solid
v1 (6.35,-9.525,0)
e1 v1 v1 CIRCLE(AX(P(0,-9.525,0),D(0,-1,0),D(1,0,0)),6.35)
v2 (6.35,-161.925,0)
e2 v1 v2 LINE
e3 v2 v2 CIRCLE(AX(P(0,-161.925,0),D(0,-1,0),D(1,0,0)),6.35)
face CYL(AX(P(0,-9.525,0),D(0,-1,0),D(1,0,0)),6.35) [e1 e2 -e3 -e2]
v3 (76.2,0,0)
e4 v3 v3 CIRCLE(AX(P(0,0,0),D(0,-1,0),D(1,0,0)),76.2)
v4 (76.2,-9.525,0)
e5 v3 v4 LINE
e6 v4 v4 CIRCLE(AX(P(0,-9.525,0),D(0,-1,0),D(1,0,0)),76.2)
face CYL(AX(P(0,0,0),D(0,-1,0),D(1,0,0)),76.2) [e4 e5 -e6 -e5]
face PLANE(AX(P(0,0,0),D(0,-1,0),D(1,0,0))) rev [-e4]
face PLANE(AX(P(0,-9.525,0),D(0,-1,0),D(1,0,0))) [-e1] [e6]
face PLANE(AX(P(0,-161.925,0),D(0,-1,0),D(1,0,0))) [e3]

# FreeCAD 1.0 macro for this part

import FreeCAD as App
import Part
import Sketcher

V = App.Vector
Q = App.Units.Quantity

doc = App.newDocument("Part")
body = doc.addObject("PartDesign::Body", "Body")

# Sketch on XY plane
sketch1 = body.newObject("Sketcher::SketchObject", "Sketch")
sketch1.AttachmentSupport = (doc.getObject("XY_Plane"), [""])
sketch1.MapMode = "FlatFace"
sketch1.addGeometry(Part.LineSegment(V(76, 0, 0), V(0, 0, 0)), False)
sketch1.addGeometry(Part.LineSegment(V(0, 0, 0), V(0, -162, 0)), False)
sketch1.addGeometry(Part.LineSegment(V(0, -162, 0), V(6, -162, 0)), False)
sketch1.addGeometry(Part.LineSegment(V(6, -162, 0), V(6, -10, 0)), False)
sketch1.addGeometry(Part.LineSegment(V(6, -10, 0), V(76, -10, 0)), False)
sketch1.addGeometry(Part.LineSegment(V(76, -10, 0), V(76, 0, 0)), False)
sketch1.addConstraint(Sketcher.Constraint("Coincident", 0, 2, 1, 1))
sketch1.addConstraint(Sketcher.Constraint("Coincident", 1, 2, 2, 1))
sketch1.addConstraint(Sketcher.Constraint("Coincident", 2, 2, 3, 1))
sketch1.addConstraint(Sketcher.Constraint("Coincident", 3, 2, 4, 1))
sketch1.addConstraint(Sketcher.Constraint("Coincident", 4, 2, 5, 1))
sketch1.addConstraint(Sketcher.Constraint("Coincident", 5, 2, 0, 1))
sketch1.addConstraint(Sketcher.Constraint("Horizontal", 0))
sketch1.addConstraint(Sketcher.Constraint("Vertical", 1))
sketch1.addConstraint(Sketcher.Constraint("Horizontal", 2))
sketch1.addConstraint(Sketcher.Constraint("Vertical", 3))
sketch1.addConstraint(Sketcher.Constraint("Horizontal", 4))
sketch1.addConstraint(Sketcher.Constraint("Vertical", 5))
sketch1.addConstraint(Sketcher.Constraint("Coincident", 0, 2, -1, 1))
sketch1.addConstraint(Sketcher.Constraint("DistanceX", 0, 2, 0, 1, Q("3 in")))
sketch1.addConstraint(Sketcher.Constraint("DistanceY", 3, 1, 3, 2, Q("6 in")))
sketch1.addConstraint(Sketcher.Constraint("DistanceX", 4, 1, 4, 2, Q("2.75 in")))
sketch1.addConstraint(Sketcher.Constraint("DistanceY", 5, 1, 5, 2, Q("0.375 in")))
revolution = body.newObject("PartDesign::Revolution", "Revolution")
revolution.Profile = sketch1
revolution.ReferenceAxis = (sketch1, ["V_Axis"])
revolution.Angle = 360

doc.recompute()
